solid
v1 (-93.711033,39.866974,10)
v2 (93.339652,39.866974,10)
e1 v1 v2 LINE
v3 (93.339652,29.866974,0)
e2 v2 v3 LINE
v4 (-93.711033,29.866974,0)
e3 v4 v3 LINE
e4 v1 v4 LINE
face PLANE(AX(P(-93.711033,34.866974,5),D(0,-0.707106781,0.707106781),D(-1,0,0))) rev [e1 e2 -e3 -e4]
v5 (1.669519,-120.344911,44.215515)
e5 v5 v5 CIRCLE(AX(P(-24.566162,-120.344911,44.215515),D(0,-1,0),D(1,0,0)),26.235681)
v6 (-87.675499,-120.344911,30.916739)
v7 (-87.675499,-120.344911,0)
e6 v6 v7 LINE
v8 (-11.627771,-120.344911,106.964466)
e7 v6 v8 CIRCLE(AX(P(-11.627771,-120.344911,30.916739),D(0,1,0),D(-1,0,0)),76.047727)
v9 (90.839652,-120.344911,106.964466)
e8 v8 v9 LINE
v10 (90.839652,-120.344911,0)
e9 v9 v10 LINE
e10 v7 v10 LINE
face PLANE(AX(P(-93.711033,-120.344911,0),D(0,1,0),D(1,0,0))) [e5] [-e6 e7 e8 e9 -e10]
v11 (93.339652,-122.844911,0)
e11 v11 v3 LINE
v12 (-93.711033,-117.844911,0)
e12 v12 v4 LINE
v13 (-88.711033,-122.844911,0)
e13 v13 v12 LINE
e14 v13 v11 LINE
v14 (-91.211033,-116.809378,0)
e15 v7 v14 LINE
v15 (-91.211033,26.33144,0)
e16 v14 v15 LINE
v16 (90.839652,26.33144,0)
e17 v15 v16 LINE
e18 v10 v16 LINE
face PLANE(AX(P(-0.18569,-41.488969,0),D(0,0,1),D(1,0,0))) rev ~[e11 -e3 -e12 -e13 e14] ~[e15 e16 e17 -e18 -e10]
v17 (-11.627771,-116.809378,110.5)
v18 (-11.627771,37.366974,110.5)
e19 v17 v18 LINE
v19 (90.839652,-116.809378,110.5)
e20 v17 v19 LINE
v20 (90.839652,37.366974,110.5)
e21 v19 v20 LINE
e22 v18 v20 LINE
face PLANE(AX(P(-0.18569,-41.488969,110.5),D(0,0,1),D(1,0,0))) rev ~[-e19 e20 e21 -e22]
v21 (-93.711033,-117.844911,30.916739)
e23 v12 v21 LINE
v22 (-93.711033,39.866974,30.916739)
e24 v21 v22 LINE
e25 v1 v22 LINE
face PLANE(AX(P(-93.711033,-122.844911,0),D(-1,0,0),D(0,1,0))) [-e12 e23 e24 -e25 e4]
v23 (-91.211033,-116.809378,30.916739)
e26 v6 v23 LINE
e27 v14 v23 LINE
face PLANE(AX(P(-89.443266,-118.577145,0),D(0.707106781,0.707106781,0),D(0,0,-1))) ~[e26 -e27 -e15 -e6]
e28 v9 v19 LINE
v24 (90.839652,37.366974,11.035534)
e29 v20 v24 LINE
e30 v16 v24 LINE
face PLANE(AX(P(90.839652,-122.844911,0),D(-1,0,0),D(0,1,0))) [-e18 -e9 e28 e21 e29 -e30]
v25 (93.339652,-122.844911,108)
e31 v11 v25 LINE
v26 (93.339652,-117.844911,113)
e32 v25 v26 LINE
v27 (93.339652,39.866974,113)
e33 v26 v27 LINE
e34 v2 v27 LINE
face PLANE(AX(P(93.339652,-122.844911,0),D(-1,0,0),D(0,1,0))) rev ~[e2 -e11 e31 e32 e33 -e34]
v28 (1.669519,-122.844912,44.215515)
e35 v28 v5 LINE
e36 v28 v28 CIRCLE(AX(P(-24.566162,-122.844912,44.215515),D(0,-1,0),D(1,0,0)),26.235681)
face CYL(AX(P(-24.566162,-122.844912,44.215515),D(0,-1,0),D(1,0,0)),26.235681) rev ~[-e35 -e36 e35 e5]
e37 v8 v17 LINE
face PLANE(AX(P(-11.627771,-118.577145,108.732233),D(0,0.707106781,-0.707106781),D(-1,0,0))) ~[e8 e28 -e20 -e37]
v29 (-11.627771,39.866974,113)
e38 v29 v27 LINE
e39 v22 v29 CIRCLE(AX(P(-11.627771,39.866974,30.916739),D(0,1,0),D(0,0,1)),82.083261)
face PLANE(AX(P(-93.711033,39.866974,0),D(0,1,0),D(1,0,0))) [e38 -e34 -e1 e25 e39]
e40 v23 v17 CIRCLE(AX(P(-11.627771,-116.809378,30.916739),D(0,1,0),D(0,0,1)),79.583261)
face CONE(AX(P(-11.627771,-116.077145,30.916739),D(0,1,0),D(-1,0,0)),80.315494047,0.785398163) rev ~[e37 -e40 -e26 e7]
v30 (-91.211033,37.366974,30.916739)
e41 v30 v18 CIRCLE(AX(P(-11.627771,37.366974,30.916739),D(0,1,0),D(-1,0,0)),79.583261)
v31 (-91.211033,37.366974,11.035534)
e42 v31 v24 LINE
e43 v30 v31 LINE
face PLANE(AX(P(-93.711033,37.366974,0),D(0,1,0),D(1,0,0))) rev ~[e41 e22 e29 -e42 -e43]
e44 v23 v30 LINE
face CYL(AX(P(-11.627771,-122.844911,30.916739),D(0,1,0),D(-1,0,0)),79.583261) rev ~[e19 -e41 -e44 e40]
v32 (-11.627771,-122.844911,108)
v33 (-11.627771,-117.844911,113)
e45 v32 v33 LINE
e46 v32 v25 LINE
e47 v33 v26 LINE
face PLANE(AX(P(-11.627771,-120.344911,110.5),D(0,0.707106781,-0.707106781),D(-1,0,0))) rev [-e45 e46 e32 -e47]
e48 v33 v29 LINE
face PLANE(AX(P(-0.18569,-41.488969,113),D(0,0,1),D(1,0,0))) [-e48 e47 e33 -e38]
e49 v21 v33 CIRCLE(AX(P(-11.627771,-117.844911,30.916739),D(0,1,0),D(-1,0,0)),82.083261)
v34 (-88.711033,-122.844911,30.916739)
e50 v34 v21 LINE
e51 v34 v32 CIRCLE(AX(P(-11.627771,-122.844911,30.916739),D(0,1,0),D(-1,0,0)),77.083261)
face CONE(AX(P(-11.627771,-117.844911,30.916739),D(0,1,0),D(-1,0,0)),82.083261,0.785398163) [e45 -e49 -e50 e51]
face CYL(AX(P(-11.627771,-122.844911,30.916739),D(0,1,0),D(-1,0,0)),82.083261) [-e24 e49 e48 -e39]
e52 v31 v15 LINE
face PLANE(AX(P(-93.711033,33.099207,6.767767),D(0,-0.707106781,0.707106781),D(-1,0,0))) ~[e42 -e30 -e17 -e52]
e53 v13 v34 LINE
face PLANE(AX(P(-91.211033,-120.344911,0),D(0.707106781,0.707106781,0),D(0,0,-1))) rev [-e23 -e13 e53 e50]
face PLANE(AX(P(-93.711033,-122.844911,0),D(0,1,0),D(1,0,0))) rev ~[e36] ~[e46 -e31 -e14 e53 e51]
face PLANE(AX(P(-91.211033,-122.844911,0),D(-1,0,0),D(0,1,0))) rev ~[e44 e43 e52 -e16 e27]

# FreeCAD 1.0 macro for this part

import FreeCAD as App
import Part
import Sketcher
Q = App.Units.Quantity


def edges_at(feature, points):
    """Names of the edges that pass closest to the given points."""
    edges = feature.Shape.Edges
    near = lambda p: min(range(len(edges)), key=lambda i: edges[i].distToShape(Part.Vertex(*p))[0])
    return sorted({f"Edge{near(p) + 1}" for p in points})


def faces_at(feature, points):
    """Names of the faces that lie closest to the given points."""
    faces = feature.Shape.Faces
    near = lambda p: min(range(len(faces)), key=lambda i: faces[i].distToShape(Part.Vertex(*p))[0])
    return sorted({f"Face{near(p) + 1}" for p in points})

doc = App.newDocument("Part")
body = doc.addObject("PartDesign::Body", "Body")

sketch1 = doc.addObject("Sketcher::SketchObject", "Sketch")
body.addObject(sketch1)
sketch1.AttachmentSupport = (doc.XY_Plane, [""])
sketch1.MapMode = "FlatFace"
sketch1.addGeometry(Part.LineSegment(App.Vector(-94, 40, 0), App.Vector(-94, -123, 0)), False)
sketch1.addGeometry(Part.LineSegment(App.Vector(-94, -123, 0), App.Vector(93, -123, 0)), False)
sketch1.addGeometry(Part.LineSegment(App.Vector(93, -123, 0), App.Vector(93, 40, 0)), False)
sketch1.addGeometry(Part.LineSegment(App.Vector(93, 40, 0), App.Vector(-94, 40, 0)), False)
sketch1.addConstraint(Sketcher.Constraint("Coincident", 0, 2, 1, 1))
sketch1.addConstraint(Sketcher.Constraint("Coincident", 1, 2, 2, 1))
sketch1.addConstraint(Sketcher.Constraint("Coincident", 2, 2, 3, 1))
sketch1.addConstraint(Sketcher.Constraint("Coincident", 3, 2, 0, 1))
sketch1.addConstraint(Sketcher.Constraint("Vertical", 0))
sketch1.addConstraint(Sketcher.Constraint("Horizontal", 1))
sketch1.addConstraint(Sketcher.Constraint("Vertical", 2))
sketch1.addConstraint(Sketcher.Constraint("Horizontal", 3))
sketch1.addConstraint(Sketcher.Constraint("DistanceX", 1, 1, 1, 2, Q("187.050685 mm")))
sketch1.addConstraint(Sketcher.Constraint("DistanceY", 0, 2, 0, 1, Q("162.711885 mm")))
sketch1.addConstraint(Sketcher.Constraint("DistanceY", 0, 2, -1, 1, Q("122.844911 mm")))
sketch1.addConstraint(Sketcher.Constraint("DistanceX", 0, 2, -1, 1, Q("93.711033 mm")))
pad1 = doc.addObject("PartDesign::Pad", "Pad")
body.addObject(pad1)
pad1.Profile = sketch1
pad1.Length = 113
doc.recompute()

fillet = doc.addObject("PartDesign::Fillet", "Fillet")
body.addObject(fillet)
fillet.Base = (pad1, edges_at(pad1, [(-93.711, -41.489, 113)]))
fillet.Radius = 82.083261
doc.recompute()

chamfer = doc.addObject("PartDesign::Chamfer", "Chamfer")
body.addObject(chamfer)
chamfer.Base = (fillet, edges_at(fillet, [(40.856, -122.845, 113)]))
chamfer.Size = 5
doc.recompute()

chamfer2 = doc.addObject("PartDesign::Chamfer", "Chamfer001")
body.addObject(chamfer2)
chamfer2.Base = (chamfer, edges_at(chamfer, [(-0.186, 39.867, 0)]))
chamfer2.Size = 10
doc.recompute()

thickness = doc.addObject("PartDesign::Thickness", "Thickness")
body.addObject(thickness)
thickness.Base = (chamfer2, faces_at(chamfer2, [(-0.186, -46.489, 0)]))
thickness.Value = 2.5
thickness.Reversed = True
thickness.Join = "Arc"

sketch2 = doc.addObject("Sketcher::SketchObject", "Sketch001")
body.addObject(sketch2)
sketch2.AttachmentSupport = (doc.XZ_Plane, [""])
sketch2.MapMode = "FlatFace"
sketch2.AttachmentOffset = App.Placement(App.Vector(0, 0, 122.844912), App.Rotation())
sketch2.addGeometry(Part.Circle(App.Vector(-25, 44, 0), App.Vector(0, 0, 1), 26), False)
sketch2.addConstraint(Sketcher.Constraint("Diameter", 0, Q("52.471362 mm")))
sketch2.addConstraint(Sketcher.Constraint("DistanceX", 0, 3, -1, 1, Q("24.566162 mm")))
sketch2.addConstraint(Sketcher.Constraint("DistanceY", -1, 1, 0, 3, Q("44.215515 mm")))
pocket1 = doc.addObject("PartDesign::Pocket", "Pocket")
body.addObject(pocket1)
pocket1.Profile = sketch2
pocket1.Length = 78

doc.recompute()
